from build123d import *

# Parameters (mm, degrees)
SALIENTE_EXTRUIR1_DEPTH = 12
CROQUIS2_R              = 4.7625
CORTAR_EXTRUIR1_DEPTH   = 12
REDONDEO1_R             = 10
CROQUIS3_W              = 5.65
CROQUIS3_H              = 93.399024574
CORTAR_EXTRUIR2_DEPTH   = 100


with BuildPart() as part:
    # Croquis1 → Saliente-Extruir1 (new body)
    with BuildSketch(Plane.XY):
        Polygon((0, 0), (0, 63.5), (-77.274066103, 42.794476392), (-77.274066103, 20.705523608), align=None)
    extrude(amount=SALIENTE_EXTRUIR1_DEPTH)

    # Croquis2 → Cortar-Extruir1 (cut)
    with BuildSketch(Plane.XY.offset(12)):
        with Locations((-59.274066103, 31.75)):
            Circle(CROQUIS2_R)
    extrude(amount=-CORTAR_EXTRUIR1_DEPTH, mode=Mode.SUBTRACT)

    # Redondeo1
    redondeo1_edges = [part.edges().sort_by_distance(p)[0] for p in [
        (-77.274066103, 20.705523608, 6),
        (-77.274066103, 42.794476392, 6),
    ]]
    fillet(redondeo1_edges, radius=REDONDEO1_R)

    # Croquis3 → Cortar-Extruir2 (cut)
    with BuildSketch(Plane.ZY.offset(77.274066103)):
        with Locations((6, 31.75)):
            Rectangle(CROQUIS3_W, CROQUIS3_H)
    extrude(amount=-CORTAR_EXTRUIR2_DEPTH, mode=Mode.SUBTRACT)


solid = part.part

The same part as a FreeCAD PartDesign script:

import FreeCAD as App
import Part
import Sketcher

V = App.Vector
Q = App.Units.Quantity


def edges_at(feature, points):
    """Names of the edges that pass closest to the given points."""
    edges = feature.Shape.Edges
    near = lambda p: min(range(len(edges)), key=lambda i: edges[i].distToShape(Part.Vertex(*p))[0])
    return sorted({f"Edge{near(p) + 1}" for p in points})

doc = App.newDocument("Part")
params = doc.addObject("Spreadsheet::Sheet", "Params")
for row, (alias, value) in enumerate([
    ("sketch1_length", "80 mm"),
    ("sketch1_height", "63.5 mm"),
    ("pad1_length", "12 mm"),
    ("pocket1_length", "12 mm"),
    ("fillet_radius", "10 mm"),
    ("sketch3_height", "5.65 mm"),
    ("pocket2_length", "100 mm"),
], start=1):
    params.set(f"A{row}", alias)
    params.set(f"B{row}", "=" + value)
    params.setAlias(f"B{row}", alias)

body = doc.addObject("PartDesign::Body", "Body")
body.AllowCompound = True

sketch1 = doc.addObject("Sketcher::SketchObject", "Sketch")
body.addObject(sketch1)
sketch1.AttachmentSupport = (doc.XY_Plane, [""])
sketch1.MapMode = "FlatFace"
sketch1.addGeometry([
    Part.LineSegment(V(0, 0, 0), V(0, 64, 0)),
    Part.LineSegment(V(0, 64, 0), V(-77, 43, 0)),
    Part.LineSegment(V(-77, 43, 0), V(-77, 21, 0)),
    Part.LineSegment(V(-77, 21, 0), V(0, 0, 0)),
], False)
sketch1.addConstraint([
    Sketcher.Constraint("Coincident", 0, 2, 1, 1),
    Sketcher.Constraint("Coincident", 1, 2, 2, 1),
    Sketcher.Constraint("Coincident", 2, 2, 3, 1),
    Sketcher.Constraint("Coincident", 3, 2, 0, 1),
    Sketcher.Constraint("Vertical", 0),
    Sketcher.Constraint("Vertical", 2),
    Sketcher.Constraint("Coincident", 3, 2, -1, 1),
    Sketcher.Constraint("Equal", 1, 3),
    Sketcher.Constraint("Angle", 1, Q("-165 deg")),
    Sketcher.Constraint("Distance", 1, Q("80 mm")),
    Sketcher.Constraint("DistanceY", 0, 1, 0, 2, Q("63.5 mm")),
])
sketch1.setExpression("Constraints[9]", "Params.sketch1_length")
sketch1.setExpression("Constraints[10]", "Params.sketch1_height")
pad1 = doc.addObject("PartDesign::Pad", "Pad")
body.addObject(pad1)
pad1.Profile = sketch1
pad1.setExpression("Length", "Params.pad1_length")

sketch2 = doc.addObject("Sketcher::SketchObject", "Sketch001")
body.addObject(sketch2)
sketch2.AttachmentSupport = (doc.XY_Plane, [""])
sketch2.MapMode = "FlatFace"
sketch2.AttachmentOffset = App.Placement(V(0, 0, 12), App.Rotation())
sketch2.addGeometry(Part.Circle(V(-59.3, 31.8, 0), V(0, 0, 1), 4.8), False)
sketch2.addConstraint([
    Sketcher.Constraint("Diameter", 0, Q("9.525 mm")),
    Sketcher.Constraint("DistanceY", -1, 1, 0, 3, Q("31.75 mm")),
    Sketcher.Constraint("DistanceX", 0, 3, -1, 1, Q("59.274066 mm")),
])
pocket1 = doc.addObject("PartDesign::Pocket", "Pocket")
body.addObject(pocket1)
pocket1.Profile = sketch2
pocket1.setExpression("Length", "Params.pocket1_length")
doc.recompute()

fillet = doc.addObject("PartDesign::Fillet", "Fillet")
body.addObject(fillet)
fillet.Base = (pocket1, edges_at(pocket1, [(-77.274, 20.706, 6), (-77.274, 42.794, 6)]))
fillet.setExpression("Radius", "Params.fillet_radius")

sketch3 = doc.addObject("Sketcher::SketchObject", "Sketch002")
body.addObject(sketch3)
sketch3.AttachmentSupport = (doc.YZ_Plane, [""])
sketch3.MapMode = "FlatFace"
sketch3.AttachmentOffset = App.Placement(V(0, 0, -77.274066), App.Rotation())
sketch3.addGeometry([
    Part.LineSegment(V(78, 3, 0), V(-15, 3, 0)),
    Part.LineSegment(V(-15, 3, 0), V(-15, 9, 0)),
    Part.LineSegment(V(-15, 9, 0), V(78, 9, 0)),
    Part.LineSegment(V(78, 9, 0), V(78, 3, 0)),
], False)
sketch3.addConstraint([
    Sketcher.Constraint("Coincident", 0, 2, 1, 1),
    Sketcher.Constraint("Coincident", 1, 2, 2, 1),
    Sketcher.Constraint("Coincident", 2, 2, 3, 1),
    Sketcher.Constraint("Coincident", 3, 2, 0, 1),
    Sketcher.Constraint("Horizontal", 0),
    Sketcher.Constraint("Vertical", 1),
    Sketcher.Constraint("Horizontal", 2),
    Sketcher.Constraint("Vertical", 3),
    Sketcher.Constraint("DistanceY", 1, 1, 1, 2, Q("5.65 mm")),
    Sketcher.Constraint("DistanceY", -1, 1, 0, 2, Q("3.175 mm")),
    Sketcher.Constraint("DistanceX", 0, 2, 0, 1, Q("93.399025 mm")),
    Sketcher.Constraint("DistanceX", 0, 2, -1, 1, Q("14.949512 mm")),
])
sketch3.setExpression("Constraints[8]", "Params.sketch3_height")
pocket2 = doc.addObject("PartDesign::Pocket", "Pocket001")
body.addObject(pocket2)
pocket2.Profile = sketch3
pocket2.setExpression("Length", "Params.pocket2_length")
pocket2.Reversed = True

doc.recompute()
